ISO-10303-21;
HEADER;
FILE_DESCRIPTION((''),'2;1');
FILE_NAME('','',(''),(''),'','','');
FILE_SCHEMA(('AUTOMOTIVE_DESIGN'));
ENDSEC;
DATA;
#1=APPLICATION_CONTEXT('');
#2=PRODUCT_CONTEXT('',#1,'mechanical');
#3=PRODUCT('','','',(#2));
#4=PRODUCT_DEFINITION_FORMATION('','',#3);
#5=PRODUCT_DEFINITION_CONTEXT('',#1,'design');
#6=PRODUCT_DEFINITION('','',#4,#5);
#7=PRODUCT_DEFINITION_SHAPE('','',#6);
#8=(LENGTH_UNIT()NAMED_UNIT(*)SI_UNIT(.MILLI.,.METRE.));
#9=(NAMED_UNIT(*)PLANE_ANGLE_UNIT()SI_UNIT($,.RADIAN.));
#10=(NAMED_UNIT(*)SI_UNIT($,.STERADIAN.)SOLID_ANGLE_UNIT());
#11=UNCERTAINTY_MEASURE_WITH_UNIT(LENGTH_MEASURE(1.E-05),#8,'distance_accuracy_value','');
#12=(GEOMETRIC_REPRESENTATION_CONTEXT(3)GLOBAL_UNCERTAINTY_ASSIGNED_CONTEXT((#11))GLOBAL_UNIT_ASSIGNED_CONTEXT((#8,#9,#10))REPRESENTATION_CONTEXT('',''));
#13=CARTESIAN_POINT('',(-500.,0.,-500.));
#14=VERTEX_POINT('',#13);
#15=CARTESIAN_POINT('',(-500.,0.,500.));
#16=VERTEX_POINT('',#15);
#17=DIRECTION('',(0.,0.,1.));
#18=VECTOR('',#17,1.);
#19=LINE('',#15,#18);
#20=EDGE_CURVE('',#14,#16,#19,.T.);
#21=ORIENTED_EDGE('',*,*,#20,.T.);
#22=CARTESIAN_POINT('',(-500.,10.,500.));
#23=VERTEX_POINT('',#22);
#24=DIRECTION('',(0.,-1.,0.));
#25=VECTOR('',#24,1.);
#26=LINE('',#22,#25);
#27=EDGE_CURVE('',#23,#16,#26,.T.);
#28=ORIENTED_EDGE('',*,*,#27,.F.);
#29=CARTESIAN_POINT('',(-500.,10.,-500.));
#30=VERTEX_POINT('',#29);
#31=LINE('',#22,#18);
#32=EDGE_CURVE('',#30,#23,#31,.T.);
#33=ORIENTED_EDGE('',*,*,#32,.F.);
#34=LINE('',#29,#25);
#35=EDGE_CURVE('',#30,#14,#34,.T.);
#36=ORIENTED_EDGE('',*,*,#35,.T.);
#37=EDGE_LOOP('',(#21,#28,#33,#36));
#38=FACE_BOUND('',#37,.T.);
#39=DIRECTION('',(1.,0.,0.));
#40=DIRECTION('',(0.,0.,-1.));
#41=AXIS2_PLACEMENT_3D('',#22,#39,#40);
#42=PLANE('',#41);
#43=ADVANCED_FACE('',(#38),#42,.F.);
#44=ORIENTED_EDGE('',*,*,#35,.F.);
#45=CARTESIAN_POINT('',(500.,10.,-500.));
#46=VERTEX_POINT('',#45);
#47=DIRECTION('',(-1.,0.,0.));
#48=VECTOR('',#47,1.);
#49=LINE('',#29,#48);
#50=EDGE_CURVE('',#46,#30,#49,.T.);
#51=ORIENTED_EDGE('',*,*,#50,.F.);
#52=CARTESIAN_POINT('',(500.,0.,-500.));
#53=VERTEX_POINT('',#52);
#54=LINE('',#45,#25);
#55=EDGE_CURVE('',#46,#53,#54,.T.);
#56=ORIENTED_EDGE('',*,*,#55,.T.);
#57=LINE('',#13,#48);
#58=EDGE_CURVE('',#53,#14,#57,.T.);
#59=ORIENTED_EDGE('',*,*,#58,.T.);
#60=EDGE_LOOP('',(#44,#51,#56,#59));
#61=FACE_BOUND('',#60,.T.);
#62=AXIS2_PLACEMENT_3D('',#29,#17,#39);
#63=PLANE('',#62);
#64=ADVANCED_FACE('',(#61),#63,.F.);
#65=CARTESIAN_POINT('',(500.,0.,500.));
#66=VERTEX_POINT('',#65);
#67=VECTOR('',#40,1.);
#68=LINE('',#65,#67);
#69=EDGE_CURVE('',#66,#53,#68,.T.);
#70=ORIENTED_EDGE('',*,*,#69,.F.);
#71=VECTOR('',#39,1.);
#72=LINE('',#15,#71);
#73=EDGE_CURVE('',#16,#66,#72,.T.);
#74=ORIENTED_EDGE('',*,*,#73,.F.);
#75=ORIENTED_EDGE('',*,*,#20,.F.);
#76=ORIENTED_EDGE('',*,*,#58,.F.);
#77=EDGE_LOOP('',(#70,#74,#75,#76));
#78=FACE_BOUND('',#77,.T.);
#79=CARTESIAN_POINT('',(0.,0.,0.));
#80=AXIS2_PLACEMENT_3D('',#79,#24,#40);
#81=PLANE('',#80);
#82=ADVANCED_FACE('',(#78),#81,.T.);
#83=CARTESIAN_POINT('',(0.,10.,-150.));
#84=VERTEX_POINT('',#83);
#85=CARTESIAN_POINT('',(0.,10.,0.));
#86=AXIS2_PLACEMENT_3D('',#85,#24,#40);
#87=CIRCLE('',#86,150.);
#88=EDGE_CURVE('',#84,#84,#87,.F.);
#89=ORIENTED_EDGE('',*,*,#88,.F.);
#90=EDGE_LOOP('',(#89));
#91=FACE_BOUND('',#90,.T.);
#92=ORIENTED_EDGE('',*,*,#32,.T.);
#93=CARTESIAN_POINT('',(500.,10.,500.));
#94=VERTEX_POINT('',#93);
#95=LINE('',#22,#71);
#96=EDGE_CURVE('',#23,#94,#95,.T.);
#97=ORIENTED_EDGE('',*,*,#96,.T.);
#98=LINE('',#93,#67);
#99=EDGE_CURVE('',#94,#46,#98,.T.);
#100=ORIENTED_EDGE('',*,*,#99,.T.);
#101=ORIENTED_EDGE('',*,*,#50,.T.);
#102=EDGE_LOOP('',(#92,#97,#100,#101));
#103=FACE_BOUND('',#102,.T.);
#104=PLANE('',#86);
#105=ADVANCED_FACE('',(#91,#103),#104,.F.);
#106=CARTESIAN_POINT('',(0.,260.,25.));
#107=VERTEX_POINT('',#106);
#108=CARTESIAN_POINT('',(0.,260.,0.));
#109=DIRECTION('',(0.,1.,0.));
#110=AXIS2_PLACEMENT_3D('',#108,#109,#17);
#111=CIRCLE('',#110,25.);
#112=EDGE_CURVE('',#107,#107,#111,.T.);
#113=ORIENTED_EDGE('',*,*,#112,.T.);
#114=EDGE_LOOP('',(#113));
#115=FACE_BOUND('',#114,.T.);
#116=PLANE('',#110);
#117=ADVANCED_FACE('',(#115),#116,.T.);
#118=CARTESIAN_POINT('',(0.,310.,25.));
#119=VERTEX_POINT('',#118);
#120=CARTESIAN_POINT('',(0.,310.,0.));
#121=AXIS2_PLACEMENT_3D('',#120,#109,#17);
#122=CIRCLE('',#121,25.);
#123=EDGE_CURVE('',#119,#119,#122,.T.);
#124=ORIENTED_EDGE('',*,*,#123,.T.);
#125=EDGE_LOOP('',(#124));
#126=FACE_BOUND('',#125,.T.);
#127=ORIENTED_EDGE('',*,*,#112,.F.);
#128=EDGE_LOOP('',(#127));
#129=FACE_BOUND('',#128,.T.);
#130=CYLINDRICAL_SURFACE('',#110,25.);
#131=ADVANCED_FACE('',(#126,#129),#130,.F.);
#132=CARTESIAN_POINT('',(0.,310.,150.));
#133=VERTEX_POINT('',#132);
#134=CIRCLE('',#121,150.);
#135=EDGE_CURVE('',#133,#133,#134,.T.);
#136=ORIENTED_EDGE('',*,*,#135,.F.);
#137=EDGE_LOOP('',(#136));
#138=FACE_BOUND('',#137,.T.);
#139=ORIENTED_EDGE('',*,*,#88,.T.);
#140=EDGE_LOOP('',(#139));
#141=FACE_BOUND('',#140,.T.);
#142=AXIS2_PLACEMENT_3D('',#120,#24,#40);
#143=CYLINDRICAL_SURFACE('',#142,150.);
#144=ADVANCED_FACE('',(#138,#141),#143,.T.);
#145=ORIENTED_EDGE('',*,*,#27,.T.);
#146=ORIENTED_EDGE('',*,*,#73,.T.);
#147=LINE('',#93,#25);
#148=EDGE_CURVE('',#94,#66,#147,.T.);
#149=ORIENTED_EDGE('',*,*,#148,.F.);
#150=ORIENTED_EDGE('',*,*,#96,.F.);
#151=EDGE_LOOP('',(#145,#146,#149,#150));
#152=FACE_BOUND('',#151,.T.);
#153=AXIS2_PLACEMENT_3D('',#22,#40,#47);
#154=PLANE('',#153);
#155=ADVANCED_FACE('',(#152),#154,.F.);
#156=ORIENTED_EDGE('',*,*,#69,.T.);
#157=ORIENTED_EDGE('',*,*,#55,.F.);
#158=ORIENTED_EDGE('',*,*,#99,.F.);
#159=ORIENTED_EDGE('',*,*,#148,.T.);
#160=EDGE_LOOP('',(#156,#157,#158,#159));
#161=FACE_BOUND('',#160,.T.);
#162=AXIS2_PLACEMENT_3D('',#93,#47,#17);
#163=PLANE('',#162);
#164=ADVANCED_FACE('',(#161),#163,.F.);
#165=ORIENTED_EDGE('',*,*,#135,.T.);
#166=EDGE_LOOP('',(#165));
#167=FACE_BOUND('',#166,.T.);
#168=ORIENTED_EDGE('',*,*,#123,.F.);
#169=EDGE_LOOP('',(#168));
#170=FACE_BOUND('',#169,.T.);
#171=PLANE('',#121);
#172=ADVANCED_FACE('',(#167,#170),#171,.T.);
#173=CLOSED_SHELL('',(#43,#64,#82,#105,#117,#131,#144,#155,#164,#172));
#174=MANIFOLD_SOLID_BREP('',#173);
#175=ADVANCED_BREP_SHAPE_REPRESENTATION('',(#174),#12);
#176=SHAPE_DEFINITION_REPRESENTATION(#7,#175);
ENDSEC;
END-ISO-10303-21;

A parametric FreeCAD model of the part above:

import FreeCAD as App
import Part
import Sketcher

V = App.Vector

doc = App.newDocument("Part")
body = doc.addObject("PartDesign::Body", "Body")

# Sketch on XZ plane
sketch1 = body.newObject("Sketcher::SketchObject", "Sketch")
sketch1.AttachmentSupport = (doc.getObject("XZ_Plane"), [""])
sketch1.MapMode = "FlatFace"
sketch1.addGeometry([
    Part.LineSegment(V(-500, -500, 0), V(-500, 500, 0)),
    Part.LineSegment(V(-500, 500, 0), V(500, 500, 0)),
    Part.LineSegment(V(500, 500, 0), V(500, -500, 0)),
    Part.LineSegment(V(500, -500, 0), V(-500, -500, 0)),
], False)
sketch1.addConstraint([
    Sketcher.Constraint("Coincident", 0, 2, 1, 1),
    Sketcher.Constraint("Coincident", 1, 2, 2, 1),
    Sketcher.Constraint("Coincident", 2, 2, 3, 1),
    Sketcher.Constraint("Coincident", 3, 2, 0, 1),
    Sketcher.Constraint("Vertical", 0),
    Sketcher.Constraint("Horizontal", 1),
    Sketcher.Constraint("Vertical", 2),
    Sketcher.Constraint("Horizontal", 3),
    Sketcher.Constraint("Symmetric", 0, 2, 2, 2, -1, 1),
    Sketcher.Constraint("Equal", 3, 0),
    Sketcher.Constraint("DistanceX", 1, 1, 1, 2, 1000.0),
])
pad1 = body.newObject("PartDesign::Pad", "Pad")
pad1.Profile = sketch1
pad1.Length = 10
pad1.Reversed = True

# Sketch on XZ plane
sketch2 = body.newObject("Sketcher::SketchObject", "Sketch001")
sketch2.AttachmentSupport = (doc.getObject("XZ_Plane"), [""])
sketch2.MapMode = "FlatFace"
sketch2.AttachmentOffset = App.Placement(V(0, 0, -10), App.Rotation())
sketch2.addGeometry(Part.Circle(V(0, 0, 0), V(0, 0, 1), 150), False)
sketch2.addConstraint([
    Sketcher.Constraint("Coincident", 0, 3, -1, 1),
    Sketcher.Constraint("Diameter", 0, 300.0),
])
pad2 = body.newObject("PartDesign::Pad", "Pad001")
pad2.Profile = sketch2
pad2.Length = 300
pad2.Reversed = True

# Sketch on XZ plane
sketch3 = body.newObject("Sketcher::SketchObject", "Sketch002")
sketch3.AttachmentSupport = (doc.getObject("XZ_Plane"), [""])
sketch3.MapMode = "FlatFace"
sketch3.AttachmentOffset = App.Placement(V(0, 0, -310), App.Rotation())
sketch3.addGeometry(Part.Circle(V(0, 0, 0), V(0, 0, 1), 25), False)
sketch3.addConstraint([
    Sketcher.Constraint("Coincident", 0, 3, -1, 1),
    Sketcher.Constraint("Diameter", 0, 50.0),
])
pocket1 = body.newObject("PartDesign::Pocket", "Pocket")
pocket1.Profile = sketch3
pocket1.Length = 50
pocket1.Reversed = True

doc.recompute()
